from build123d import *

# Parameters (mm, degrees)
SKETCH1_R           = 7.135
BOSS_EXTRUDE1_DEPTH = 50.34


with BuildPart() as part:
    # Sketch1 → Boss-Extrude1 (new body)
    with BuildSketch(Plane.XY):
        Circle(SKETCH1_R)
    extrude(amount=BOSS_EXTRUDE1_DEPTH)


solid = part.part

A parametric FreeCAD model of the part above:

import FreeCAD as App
import Part
import Sketcher
from FreeCAD import Vector

doc = App.newDocument("Part")
body = doc.addObject("PartDesign::Body", "Body")

# Sketch on XY plane
sketch1 = doc.addObject("Sketcher::SketchObject", "Sketch")
body.addObject(sketch1)
sketch1.AttachmentSupport = (doc.XY_Plane, [""])
sketch1.MapMode = "FlatFace"
sketch1.addGeometry(Part.Circle(Vector(0, 0, 0), Vector(0, 0, 1), 7.135), False)
sketch1.addConstraint(Sketcher.Constraint("Coincident", 0, 3, -1, 1))
sketch1.addConstraint(Sketcher.Constraint("Diameter", 0, 14.27))
pad1 = doc.addObject("PartDesign::Pad", "Pad")
body.addObject(pad1)
pad1.Profile = sketch1
pad1.Length = 50.34

doc.recompute()
